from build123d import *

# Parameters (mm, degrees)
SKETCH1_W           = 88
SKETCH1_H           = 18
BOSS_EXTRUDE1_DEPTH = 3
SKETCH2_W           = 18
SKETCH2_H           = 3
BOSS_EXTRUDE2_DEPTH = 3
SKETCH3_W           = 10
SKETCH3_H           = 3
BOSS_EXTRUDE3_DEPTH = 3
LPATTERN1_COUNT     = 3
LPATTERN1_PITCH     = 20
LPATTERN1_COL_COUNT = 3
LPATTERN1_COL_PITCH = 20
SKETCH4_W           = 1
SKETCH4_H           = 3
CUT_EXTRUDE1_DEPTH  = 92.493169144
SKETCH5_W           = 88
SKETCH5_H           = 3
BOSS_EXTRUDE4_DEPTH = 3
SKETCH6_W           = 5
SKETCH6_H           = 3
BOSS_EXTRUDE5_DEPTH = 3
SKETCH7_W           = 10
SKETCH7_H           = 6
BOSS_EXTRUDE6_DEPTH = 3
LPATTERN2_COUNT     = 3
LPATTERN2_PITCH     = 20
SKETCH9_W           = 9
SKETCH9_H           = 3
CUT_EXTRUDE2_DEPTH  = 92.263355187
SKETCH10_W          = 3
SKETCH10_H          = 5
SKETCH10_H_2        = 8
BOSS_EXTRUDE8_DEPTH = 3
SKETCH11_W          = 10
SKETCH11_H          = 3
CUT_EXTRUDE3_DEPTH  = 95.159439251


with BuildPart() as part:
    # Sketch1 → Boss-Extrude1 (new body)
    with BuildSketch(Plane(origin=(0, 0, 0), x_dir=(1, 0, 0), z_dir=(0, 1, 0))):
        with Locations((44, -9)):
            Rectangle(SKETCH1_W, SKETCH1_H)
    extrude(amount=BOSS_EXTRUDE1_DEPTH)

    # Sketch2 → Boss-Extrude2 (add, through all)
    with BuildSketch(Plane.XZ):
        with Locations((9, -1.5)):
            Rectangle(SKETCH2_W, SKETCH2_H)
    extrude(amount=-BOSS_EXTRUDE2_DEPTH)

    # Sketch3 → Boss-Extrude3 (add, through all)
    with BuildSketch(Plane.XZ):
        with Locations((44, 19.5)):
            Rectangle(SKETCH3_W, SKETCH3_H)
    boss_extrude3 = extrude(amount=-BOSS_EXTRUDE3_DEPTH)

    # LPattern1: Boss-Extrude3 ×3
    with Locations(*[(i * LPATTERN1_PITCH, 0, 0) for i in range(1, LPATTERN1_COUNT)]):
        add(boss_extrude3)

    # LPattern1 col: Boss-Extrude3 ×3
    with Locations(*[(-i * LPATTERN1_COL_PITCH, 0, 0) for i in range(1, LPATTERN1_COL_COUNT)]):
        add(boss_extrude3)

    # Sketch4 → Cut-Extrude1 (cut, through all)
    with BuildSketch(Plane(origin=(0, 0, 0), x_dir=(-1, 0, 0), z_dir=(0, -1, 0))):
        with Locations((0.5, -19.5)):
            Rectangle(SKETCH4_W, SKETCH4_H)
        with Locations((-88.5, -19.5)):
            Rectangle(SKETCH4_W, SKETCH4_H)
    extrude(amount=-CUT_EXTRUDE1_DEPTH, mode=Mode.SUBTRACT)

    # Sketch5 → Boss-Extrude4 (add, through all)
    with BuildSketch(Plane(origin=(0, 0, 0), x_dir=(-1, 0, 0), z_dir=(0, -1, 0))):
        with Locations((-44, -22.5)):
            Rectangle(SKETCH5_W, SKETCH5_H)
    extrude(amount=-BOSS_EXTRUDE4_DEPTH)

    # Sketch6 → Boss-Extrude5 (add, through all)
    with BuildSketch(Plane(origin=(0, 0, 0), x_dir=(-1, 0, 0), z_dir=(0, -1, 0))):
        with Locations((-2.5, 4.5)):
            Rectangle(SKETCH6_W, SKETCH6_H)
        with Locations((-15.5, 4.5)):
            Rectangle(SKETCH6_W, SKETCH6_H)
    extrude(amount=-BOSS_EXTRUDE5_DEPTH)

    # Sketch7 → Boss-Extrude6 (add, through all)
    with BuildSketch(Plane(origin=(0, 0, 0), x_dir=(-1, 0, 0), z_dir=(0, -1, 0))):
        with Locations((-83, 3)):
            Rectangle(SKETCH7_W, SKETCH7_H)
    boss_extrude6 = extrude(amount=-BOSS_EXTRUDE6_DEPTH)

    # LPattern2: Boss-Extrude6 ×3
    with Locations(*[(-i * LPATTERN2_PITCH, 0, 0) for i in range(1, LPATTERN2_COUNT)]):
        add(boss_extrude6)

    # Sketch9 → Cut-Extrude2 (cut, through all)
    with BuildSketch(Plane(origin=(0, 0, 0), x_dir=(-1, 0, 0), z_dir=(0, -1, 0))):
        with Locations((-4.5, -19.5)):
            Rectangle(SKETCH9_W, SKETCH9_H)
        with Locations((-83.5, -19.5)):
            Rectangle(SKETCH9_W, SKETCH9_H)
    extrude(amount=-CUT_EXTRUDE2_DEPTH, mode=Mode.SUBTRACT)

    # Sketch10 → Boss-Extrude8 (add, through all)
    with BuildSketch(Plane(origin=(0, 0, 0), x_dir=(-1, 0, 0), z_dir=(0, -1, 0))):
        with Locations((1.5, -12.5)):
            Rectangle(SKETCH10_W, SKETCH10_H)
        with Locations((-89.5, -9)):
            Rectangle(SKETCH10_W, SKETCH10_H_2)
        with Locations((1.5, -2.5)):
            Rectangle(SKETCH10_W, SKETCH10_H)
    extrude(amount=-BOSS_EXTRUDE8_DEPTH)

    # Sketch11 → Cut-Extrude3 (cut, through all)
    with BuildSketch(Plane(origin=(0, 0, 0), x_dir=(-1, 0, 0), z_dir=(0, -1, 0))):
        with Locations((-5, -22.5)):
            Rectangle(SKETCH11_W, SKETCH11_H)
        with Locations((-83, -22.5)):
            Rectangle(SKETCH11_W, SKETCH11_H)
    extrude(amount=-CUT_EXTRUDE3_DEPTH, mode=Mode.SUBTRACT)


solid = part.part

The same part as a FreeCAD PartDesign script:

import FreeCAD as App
import Part
import Sketcher
from FreeCAD import Vector

doc = App.newDocument("Part")
params = doc.addObject("Spreadsheet::Sheet", "Params")
for row, (alias, value) in enumerate([
    ("sketch1_width", "88 mm"),
    ("sketch1_height", "18 mm"),
    ("pad1_length", "3 mm"),
    ("sketch2_width", "18 mm"),
    ("sketch2_height", "3 mm"),
    ("pad2_length", "3 mm"),
    ("sketch3_width", "10 mm"),
    ("sketch3_height", "3 mm"),
    ("pad3_length", "3 mm"),
    ("linearpattern_pitch", "20 mm"),
    ("linearpattern2_pitch", "20 mm"),
    ("sketch4_width", "1 mm"),
    ("sketch4_height", "3 mm"),
    ("sketch5_width", "88 mm"),
    ("sketch5_height", "3 mm"),
    ("pad4_length", "3 mm"),
    ("sketch6_width", "5 mm"),
    ("sketch6_height", "3 mm"),
    ("pad5_length", "3 mm"),
    ("sketch7_width", "10 mm"),
    ("sketch7_height", "6 mm"),
    ("pad6_length", "3 mm"),
    ("linearpattern3_pitch", "20 mm"),
    ("sketch8_width", "9 mm"),
    ("sketch8_height", "3 mm"),
    ("sketch9_width", "3 mm"),
    ("sketch9_height", "5 mm"),
    ("sketch9_height2", "8 mm"),
    ("pad7_length", "3 mm"),
    ("sketch10_width", "10 mm"),
    ("sketch10_height", "3 mm"),
], start=1):
    params.set(f"A{row}", alias)
    params.set(f"B{row}", "=" + value)
    params.setAlias(f"B{row}", alias)

body = doc.addObject("PartDesign::Body", "Body")

# Sketch on XZ plane
sketch1 = body.newObject("Sketcher::SketchObject", "Sketch")
sketch1.AttachmentSupport = (doc.getObject("XZ_Plane"), [""])
sketch1.MapMode = "FlatFace"
sketch1.addGeometry([
    Part.LineSegment(Vector(0, 0, 0), Vector(0, 18, 0)),
    Part.LineSegment(Vector(0, 18, 0), Vector(88, 18, 0)),
    Part.LineSegment(Vector(88, 18, 0), Vector(88, 0, 0)),
    Part.LineSegment(Vector(88, 0, 0), Vector(0, 0, 0)),
], False)
sketch1.addConstraint([
    Sketcher.Constraint("Coincident", 0, 2, 1, 1),
    Sketcher.Constraint("Coincident", 1, 2, 2, 1),
    Sketcher.Constraint("Coincident", 2, 2, 3, 1),
    Sketcher.Constraint("Coincident", 3, 2, 0, 1),
    Sketcher.Constraint("Vertical", 0),
    Sketcher.Constraint("Horizontal", 1),
    Sketcher.Constraint("Vertical", 2),
    Sketcher.Constraint("Horizontal", 3),
    Sketcher.Constraint("Coincident", 3, 2, -1, 1),
    Sketcher.Constraint("DistanceX", 1, 1, 1, 2, 88.0),
    Sketcher.Constraint("DistanceY", 0, 1, 0, 2, 18.0),
])
sketch1.setExpression("Constraints[9]", "Params.sketch1_width")
sketch1.setExpression("Constraints[10]", "Params.sketch1_height")
pad1 = body.newObject("PartDesign::Pad", "Pad")
pad1.Profile = sketch1
pad1.setExpression("Length", "Params.pad1_length")
pad1.Reversed = True

# Sketch on XZ plane
sketch2 = body.newObject("Sketcher::SketchObject", "Sketch001")
sketch2.AttachmentSupport = (doc.getObject("XZ_Plane"), [""])
sketch2.MapMode = "FlatFace"
sketch2.addGeometry([
    Part.LineSegment(Vector(0, 0, 0), Vector(0, -3, 0)),
    Part.LineSegment(Vector(0, -3, 0), Vector(18, -3, 0)),
    Part.LineSegment(Vector(18, -3, 0), Vector(18, 0, 0)),
    Part.LineSegment(Vector(18, 0, 0), Vector(0, 0, 0)),
], False)
sketch2.addConstraint([
    Sketcher.Constraint("Coincident", 0, 2, 1, 1),
    Sketcher.Constraint("Coincident", 1, 2, 2, 1),
    Sketcher.Constraint("Coincident", 2, 2, 3, 1),
    Sketcher.Constraint("Coincident", 3, 2, 0, 1),
    Sketcher.Constraint("Vertical", 0),
    Sketcher.Constraint("Horizontal", 1),
    Sketcher.Constraint("Vertical", 2),
    Sketcher.Constraint("Horizontal", 3),
    Sketcher.Constraint("Coincident", 3, 2, -1, 1),
    Sketcher.Constraint("DistanceX", 1, 1, 1, 2, 18.0),
    Sketcher.Constraint("DistanceY", 0, 2, 0, 1, 3.0),
])
sketch2.setExpression("Constraints[9]", "Params.sketch2_width")
sketch2.setExpression("Constraints[10]", "Params.sketch2_height")
pad2 = body.newObject("PartDesign::Pad", "Pad001")
pad2.Profile = sketch2
pad2.setExpression("Length", "Params.pad2_length")
pad2.Reversed = True

# Sketch on XZ plane
sketch3 = body.newObject("Sketcher::SketchObject", "Sketch002")
sketch3.AttachmentSupport = (doc.getObject("XZ_Plane"), [""])
sketch3.MapMode = "FlatFace"
sketch3.addGeometry([
    Part.LineSegment(Vector(39, 21, 0), Vector(39, 18, 0)),
    Part.LineSegment(Vector(39, 18, 0), Vector(49, 18, 0)),
    Part.LineSegment(Vector(49, 18, 0), Vector(49, 21, 0)),
    Part.LineSegment(Vector(49, 21, 0), Vector(39, 21, 0)),
], False)
sketch3.addConstraint([
    Sketcher.Constraint("Coincident", 0, 2, 1, 1),
    Sketcher.Constraint("Coincident", 1, 2, 2, 1),
    Sketcher.Constraint("Coincident", 2, 2, 3, 1),
    Sketcher.Constraint("Coincident", 3, 2, 0, 1),
    Sketcher.Constraint("Vertical", 0),
    Sketcher.Constraint("Horizontal", 1),
    Sketcher.Constraint("Vertical", 2),
    Sketcher.Constraint("Horizontal", 3),
    Sketcher.Constraint("DistanceX", 1, 1, 1, 2, 10.0),
    Sketcher.Constraint("DistanceY", 0, 2, 0, 1, 3.0),
    Sketcher.Constraint("DistanceX", -1, 1, 0, 2, 39.0),
    Sketcher.Constraint("DistanceY", -1, 1, 0, 2, 18.0),
])
sketch3.setExpression("Constraints[8]", "Params.sketch3_width")
sketch3.setExpression("Constraints[9]", "Params.sketch3_height")
pad3 = body.newObject("PartDesign::Pad", "Pad002")
pad3.Profile = sketch3
pad3.setExpression("Length", "Params.pad3_length")
pad3.Reversed = True
doc.recompute()

linearpattern = body.newObject("PartDesign::LinearPattern", "LinearPattern")
linearpattern.Originals = [pad3]
linearpattern.Direction = (doc.getObject("X_Axis"), [""])
linearpattern.Mode = "offset"
linearpattern.setExpression("Offset", "Params.linearpattern_pitch")
linearpattern.Occurrences = 3
body.Tip = linearpattern
doc.recompute()

linearpattern2 = body.newObject("PartDesign::LinearPattern", "LinearPattern001")
linearpattern2.Originals = [pad3]
linearpattern2.Direction = (doc.getObject("X_Axis"), [""])
linearpattern2.Mode = "offset"
linearpattern2.setExpression("Offset", "Params.linearpattern2_pitch")
linearpattern2.Occurrences = 3
linearpattern2.Reversed = True
body.Tip = linearpattern2

# Sketch on XZ plane
sketch4 = body.newObject("Sketcher::SketchObject", "Sketch003")
sketch4.AttachmentSupport = (doc.getObject("XZ_Plane"), [""])
sketch4.MapMode = "FlatFace"
sketch4.addGeometry([
    Part.LineSegment(Vector(0, 18, 0), Vector(0, 21, 0)),  # 0
    Part.LineSegment(Vector(0, 21, 0), Vector(-1, 21, 0)),  # 1
    Part.LineSegment(Vector(-1, 21, 0), Vector(-1, 18, 0)),  # 2
    Part.LineSegment(Vector(-1, 18, 0), Vector(0, 18, 0)),  # 3
    Part.LineSegment(Vector(89, 18, 0), Vector(89, 21, 0)),  # 4
    Part.LineSegment(Vector(89, 21, 0), Vector(88, 21, 0)),  # 5
    Part.LineSegment(Vector(88, 21, 0), Vector(88, 18, 0)),  # 6
    Part.LineSegment(Vector(88, 18, 0), Vector(89, 18, 0)),  # 7
], False)
sketch4.addConstraint([
    Sketcher.Constraint("Coincident", 0, 2, 1, 1),
    Sketcher.Constraint("Coincident", 1, 2, 2, 1),
    Sketcher.Constraint("Coincident", 2, 2, 3, 1),
    Sketcher.Constraint("Coincident", 3, 2, 0, 1),
    Sketcher.Constraint("Coincident", 4, 2, 5, 1),
    Sketcher.Constraint("Coincident", 5, 2, 6, 1),
    Sketcher.Constraint("Coincident", 6, 2, 7, 1),
    Sketcher.Constraint("Coincident", 7, 2, 4, 1),
    Sketcher.Constraint("Vertical", 0),
    Sketcher.Constraint("Horizontal", 1),
    Sketcher.Constraint("Vertical", 2),
    Sketcher.Constraint("Horizontal", 3),
    Sketcher.Constraint("Vertical", 4),
    Sketcher.Constraint("Horizontal", 5),
    Sketcher.Constraint("Vertical", 6),
    Sketcher.Constraint("Horizontal", 7),
    Sketcher.Constraint("PointOnObject", 0, 2, -2),
    Sketcher.Constraint("Horizontal", 1, 2, 4, 2),
    Sketcher.Constraint("Horizontal", 3, 2, 6, 2),
    Sketcher.Constraint("Equal", 3, 5),
    Sketcher.Constraint("DistanceX", 1, 2, 1, 1, 1.0),
    Sketcher.Constraint("DistanceY", 0, 1, 0, 2, 3.0),
    Sketcher.Constraint("DistanceY", -1, 1, 0, 2, 21.0),
    Sketcher.Constraint("DistanceX", -1, 1, 4, 2, 89.0),
])
sketch4.setExpression("Constraints[20]", "Params.sketch4_width")
sketch4.setExpression("Constraints[21]", "Params.sketch4_height")
pocket1 = body.newObject("PartDesign::Pocket", "Pocket")
pocket1.Profile = sketch4
pocket1.Type = "ThroughAll"

# Sketch on XZ plane
sketch5 = body.newObject("Sketcher::SketchObject", "Sketch004")
sketch5.AttachmentSupport = (doc.getObject("XZ_Plane"), [""])
sketch5.MapMode = "FlatFace"
sketch5.addGeometry([
    Part.LineSegment(Vector(88, 21, 0), Vector(88, 24, 0)),
    Part.LineSegment(Vector(88, 24, 0), Vector(0, 24, 0)),
    Part.LineSegment(Vector(0, 24, 0), Vector(0, 21, 0)),
    Part.LineSegment(Vector(0, 21, 0), Vector(88, 21, 0)),
], False)
sketch5.addConstraint([
    Sketcher.Constraint("Coincident", 0, 2, 1, 1),
    Sketcher.Constraint("Coincident", 1, 2, 2, 1),
    Sketcher.Constraint("Coincident", 2, 2, 3, 1),
    Sketcher.Constraint("Coincident", 3, 2, 0, 1),
    Sketcher.Constraint("Vertical", 0),
    Sketcher.Constraint("Horizontal", 1),
    Sketcher.Constraint("Vertical", 2),
    Sketcher.Constraint("Horizontal", 3),
    Sketcher.Constraint("PointOnObject", 1, 2, -2),
    Sketcher.Constraint("DistanceX", 1, 2, 1, 1, 88.0),
    Sketcher.Constraint("DistanceY", 0, 1, 0, 2, 3.0),
    Sketcher.Constraint("DistanceY", -1, 1, 0, 2, 24.0),
])
sketch5.setExpression("Constraints[9]", "Params.sketch5_width")
sketch5.setExpression("Constraints[10]", "Params.sketch5_height")
pad4 = body.newObject("PartDesign::Pad", "Pad003")
pad4.Profile = sketch5
pad4.setExpression("Length", "Params.pad4_length")
pad4.Reversed = True

# Sketch on XZ plane
sketch6 = body.newObject("Sketcher::SketchObject", "Sketch005")
sketch6.AttachmentSupport = (doc.getObject("XZ_Plane"), [""])
sketch6.MapMode = "FlatFace"
sketch6.addGeometry([
    Part.LineSegment(Vector(5, -6, 0), Vector(5, -3, 0)),  # 0
    Part.LineSegment(Vector(5, -3, 0), Vector(0, -3, 0)),  # 1
    Part.LineSegment(Vector(0, -3, 0), Vector(0, -6, 0)),  # 2
    Part.LineSegment(Vector(0, -6, 0), Vector(5, -6, 0)),  # 3
    Part.LineSegment(Vector(18, -6, 0), Vector(18, -3, 0)),  # 4
    Part.LineSegment(Vector(18, -3, 0), Vector(13, -3, 0)),  # 5
    Part.LineSegment(Vector(13, -3, 0), Vector(13, -6, 0)),  # 6
    Part.LineSegment(Vector(13, -6, 0), Vector(18, -6, 0)),  # 7
], False)
sketch6.addConstraint([
    Sketcher.Constraint("Coincident", 0, 2, 1, 1),
    Sketcher.Constraint("Coincident", 1, 2, 2, 1),
    Sketcher.Constraint("Coincident", 2, 2, 3, 1),
    Sketcher.Constraint("Coincident", 3, 2, 0, 1),
    Sketcher.Constraint("Coincident", 4, 2, 5, 1),
    Sketcher.Constraint("Coincident", 5, 2, 6, 1),
    Sketcher.Constraint("Coincident", 6, 2, 7, 1),
    Sketcher.Constraint("Coincident", 7, 2, 4, 1),
    Sketcher.Constraint("Vertical", 0),
    Sketcher.Constraint("Horizontal", 1),
    Sketcher.Constraint("Vertical", 2),
    Sketcher.Constraint("Horizontal", 3),
    Sketcher.Constraint("Vertical", 4),
    Sketcher.Constraint("Horizontal", 5),
    Sketcher.Constraint("Vertical", 6),
    Sketcher.Constraint("Horizontal", 7),
    Sketcher.Constraint("PointOnObject", 1, 2, -2),
    Sketcher.Constraint("Horizontal", 1, 2, 4, 2),
    Sketcher.Constraint("Horizontal", 3, 2, 6, 2),
    Sketcher.Constraint("Equal", 3, 5),
    Sketcher.Constraint("DistanceX", 1, 2, 1, 1, 5.0),
    Sketcher.Constraint("DistanceY", 0, 1, 0, 2, 3.0),
    Sketcher.Constraint("DistanceY", 0, 2, -1, 1, 3.0),
    Sketcher.Constraint("DistanceX", -1, 1, 4, 2, 18.0),
])
sketch6.setExpression("Constraints[20]", "Params.sketch6_width")
sketch6.setExpression("Constraints[21]", "Params.sketch6_height")
pad5 = body.newObject("PartDesign::Pad", "Pad004")
pad5.Profile = sketch6
pad5.setExpression("Length", "Params.pad5_length")
pad5.Reversed = True

# Sketch on XZ plane
sketch7 = body.newObject("Sketcher::SketchObject", "Sketch006")
sketch7.AttachmentSupport = (doc.getObject("XZ_Plane"), [""])
sketch7.MapMode = "FlatFace"
sketch7.addGeometry([
    Part.LineSegment(Vector(88, -6, 0), Vector(88, 0, 0)),
    Part.LineSegment(Vector(88, 0, 0), Vector(78, 0, 0)),
    Part.LineSegment(Vector(78, 0, 0), Vector(78, -6, 0)),
    Part.LineSegment(Vector(78, -6, 0), Vector(88, -6, 0)),
], False)
sketch7.addConstraint([
    Sketcher.Constraint("Coincident", 0, 2, 1, 1),
    Sketcher.Constraint("Coincident", 1, 2, 2, 1),
    Sketcher.Constraint("Coincident", 2, 2, 3, 1),
    Sketcher.Constraint("Coincident", 3, 2, 0, 1),
    Sketcher.Constraint("Vertical", 0),
    Sketcher.Constraint("Horizontal", 1),
    Sketcher.Constraint("Vertical", 2),
    Sketcher.Constraint("Horizontal", 3),
    Sketcher.Constraint("PointOnObject", 0, 2, -1),
    Sketcher.Constraint("DistanceX", 1, 2, 1, 1, 10.0),
    Sketcher.Constraint("DistanceY", 0, 1, 0, 2, 6.0),
    Sketcher.Constraint("DistanceX", -1, 1, 0, 2, 88.0),
])
sketch7.setExpression("Constraints[9]", "Params.sketch7_width")
sketch7.setExpression("Constraints[10]", "Params.sketch7_height")
pad6 = body.newObject("PartDesign::Pad", "Pad005")
pad6.Profile = sketch7
pad6.setExpression("Length", "Params.pad6_length")
pad6.Reversed = True
doc.recompute()

linearpattern3 = body.newObject("PartDesign::LinearPattern", "LinearPattern002")
linearpattern3.Originals = [pad6]
linearpattern3.Direction = (doc.getObject("X_Axis"), [""])
linearpattern3.Mode = "offset"
linearpattern3.setExpression("Offset", "Params.linearpattern3_pitch")
linearpattern3.Occurrences = 3
linearpattern3.Reversed = True
body.Tip = linearpattern3

# Sketch on XZ plane
sketch8 = body.newObject("Sketcher::SketchObject", "Sketch007")
sketch8.AttachmentSupport = (doc.getObject("XZ_Plane"), [""])
sketch8.MapMode = "FlatFace"
sketch8.addGeometry([
    Part.LineSegment(Vector(9, 18, 0), Vector(9, 21, 0)),  # 0
    Part.LineSegment(Vector(9, 21, 0), Vector(0, 21, 0)),  # 1
    Part.LineSegment(Vector(0, 21, 0), Vector(0, 18, 0)),  # 2
    Part.LineSegment(Vector(0, 18, 0), Vector(9, 18, 0)),  # 3
    Part.LineSegment(Vector(88, 18, 0), Vector(88, 21, 0)),  # 4
    Part.LineSegment(Vector(88, 21, 0), Vector(79, 21, 0)),  # 5
    Part.LineSegment(Vector(79, 21, 0), Vector(79, 18, 0)),  # 6
    Part.LineSegment(Vector(79, 18, 0), Vector(88, 18, 0)),  # 7
], False)
sketch8.addConstraint([
    Sketcher.Constraint("Coincident", 0, 2, 1, 1),
    Sketcher.Constraint("Coincident", 1, 2, 2, 1),
    Sketcher.Constraint("Coincident", 2, 2, 3, 1),
    Sketcher.Constraint("Coincident", 3, 2, 0, 1),
    Sketcher.Constraint("Coincident", 4, 2, 5, 1),
    Sketcher.Constraint("Coincident", 5, 2, 6, 1),
    Sketcher.Constraint("Coincident", 6, 2, 7, 1),
    Sketcher.Constraint("Coincident", 7, 2, 4, 1),
    Sketcher.Constraint("Vertical", 0),
    Sketcher.Constraint("Horizontal", 1),
    Sketcher.Constraint("Vertical", 2),
    Sketcher.Constraint("Horizontal", 3),
    Sketcher.Constraint("Vertical", 4),
    Sketcher.Constraint("Horizontal", 5),
    Sketcher.Constraint("Vertical", 6),
    Sketcher.Constraint("Horizontal", 7),
    Sketcher.Constraint("PointOnObject", 1, 2, -2),
    Sketcher.Constraint("Horizontal", 1, 2, 4, 2),
    Sketcher.Constraint("Horizontal", 3, 2, 6, 2),
    Sketcher.Constraint("Equal", 3, 5),
    Sketcher.Constraint("DistanceX", 1, 2, 1, 1, 9.0),
    Sketcher.Constraint("DistanceY", 0, 1, 0, 2, 3.0),
    Sketcher.Constraint("DistanceY", -1, 1, 0, 2, 21.0),
    Sketcher.Constraint("DistanceX", -1, 1, 4, 2, 88.0),
])
sketch8.setExpression("Constraints[20]", "Params.sketch8_width")
sketch8.setExpression("Constraints[21]", "Params.sketch8_height")
pocket2 = body.newObject("PartDesign::Pocket", "Pocket001")
pocket2.Profile = sketch8
pocket2.Type = "ThroughAll"

# Sketch on XZ plane
sketch9 = body.newObject("Sketcher::SketchObject", "Sketch008")
sketch9.AttachmentSupport = (doc.getObject("XZ_Plane"), [""])
sketch9.MapMode = "FlatFace"
sketch9.addGeometry([
    Part.LineSegment(Vector(0, 10, 0), Vector(0, 15, 0)),  # 0
    Part.LineSegment(Vector(0, 15, 0), Vector(-3, 15, 0)),  # 1
    Part.LineSegment(Vector(-3, 15, 0), Vector(-3, 10, 0)),  # 2
    Part.LineSegment(Vector(-3, 10, 0), Vector(0, 10, 0)),  # 3
    Part.LineSegment(Vector(91, 5, 0), Vector(91, 13, 0)),  # 4
    Part.LineSegment(Vector(91, 13, 0), Vector(88, 13, 0)),  # 5
    Part.LineSegment(Vector(88, 13, 0), Vector(88, 5, 0)),  # 6
    Part.LineSegment(Vector(88, 5, 0), Vector(91, 5, 0)),  # 7
    Part.LineSegment(Vector(0, 0, 0), Vector(0, 5, 0)),  # 8
    Part.LineSegment(Vector(0, 5, 0), Vector(-3, 5, 0)),  # 9
    Part.LineSegment(Vector(-3, 5, 0), Vector(-3, 0, 0)),  # 10
    Part.LineSegment(Vector(-3, 0, 0), Vector(0, 0, 0)),  # 11
], False)
sketch9.addConstraint([
    Sketcher.Constraint("Coincident", 0, 2, 1, 1),
    Sketcher.Constraint("Coincident", 1, 2, 2, 1),
    Sketcher.Constraint("Coincident", 2, 2, 3, 1),
    Sketcher.Constraint("Coincident", 3, 2, 0, 1),
    Sketcher.Constraint("Coincident", 4, 2, 5, 1),
    Sketcher.Constraint("Coincident", 5, 2, 6, 1),
    Sketcher.Constraint("Coincident", 6, 2, 7, 1),
    Sketcher.Constraint("Coincident", 7, 2, 4, 1),
    Sketcher.Constraint("Coincident", 8, 2, 9, 1),
    Sketcher.Constraint("Coincident", 9, 2, 10, 1),
    Sketcher.Constraint("Coincident", 10, 2, 11, 1),
    Sketcher.Constraint("Coincident", 11, 2, 8, 1),
    Sketcher.Constraint("Vertical", 0),
    Sketcher.Constraint("Horizontal", 1),
    Sketcher.Constraint("Vertical", 2),
    Sketcher.Constraint("Horizontal", 3),
    Sketcher.Constraint("Vertical", 4),
    Sketcher.Constraint("Horizontal", 5),
    Sketcher.Constraint("Vertical", 6),
    Sketcher.Constraint("Horizontal", 7),
    Sketcher.Constraint("Vertical", 8),
    Sketcher.Constraint("Horizontal", 9),
    Sketcher.Constraint("Vertical", 10),
    Sketcher.Constraint("Horizontal", 11),
    Sketcher.Constraint("Coincident", 11, 2, -1, 1),
    Sketcher.Constraint("PointOnObject", 0, 2, -2),
    Sketcher.Constraint("Horizontal", 7, 2, 8, 2),
    Sketcher.Constraint("Vertical", 2, 2, 9, 2),
    Sketcher.Constraint("Equal", 3, 5),
    Sketcher.Constraint("Equal", 2, 8),
    Sketcher.Constraint("DistanceX", 1, 2, 1, 1, 3.0),
    Sketcher.Constraint("DistanceY", 0, 1, 0, 2, 5.0),
    Sketcher.Constraint("DistanceY", 4, 1, 4, 2, 8.0),
    Sketcher.Constraint("DistanceY", -1, 1, 0, 2, 15.0),
    Sketcher.Constraint("DistanceX", -1, 1, 4, 2, 91.0),
])
sketch9.setExpression("Constraints[30]", "Params.sketch9_width")
sketch9.setExpression("Constraints[31]", "Params.sketch9_height")
sketch9.setExpression("Constraints[32]", "Params.sketch9_height2")
pad7 = body.newObject("PartDesign::Pad", "Pad006")
pad7.Profile = sketch9
pad7.setExpression("Length", "Params.pad7_length")
pad7.Reversed = True

# Sketch on XZ plane
sketch10 = body.newObject("Sketcher::SketchObject", "Sketch009")
sketch10.AttachmentSupport = (doc.getObject("XZ_Plane"), [""])
sketch10.MapMode = "FlatFace"
sketch10.addGeometry([
    Part.LineSegment(Vector(10, 21, 0), Vector(10, 24, 0)),  # 0
    Part.LineSegment(Vector(10, 24, 0), Vector(0, 24, 0)),  # 1
    Part.LineSegment(Vector(0, 24, 0), Vector(0, 21, 0)),  # 2
    Part.LineSegment(Vector(0, 21, 0), Vector(10, 21, 0)),  # 3
    Part.LineSegment(Vector(88, 21, 0), Vector(88, 24, 0)),  # 4
    Part.LineSegment(Vector(88, 24, 0), Vector(78, 24, 0)),  # 5
    Part.LineSegment(Vector(78, 24, 0), Vector(78, 21, 0)),  # 6
    Part.LineSegment(Vector(78, 21, 0), Vector(88, 21, 0)),  # 7
], False)
sketch10.addConstraint([
    Sketcher.Constraint("Coincident", 0, 2, 1, 1),
    Sketcher.Constraint("Coincident", 1, 2, 2, 1),
    Sketcher.Constraint("Coincident", 2, 2, 3, 1),
    Sketcher.Constraint("Coincident", 3, 2, 0, 1),
    Sketcher.Constraint("Coincident", 4, 2, 5, 1),
    Sketcher.Constraint("Coincident", 5, 2, 6, 1),
    Sketcher.Constraint("Coincident", 6, 2, 7, 1),
    Sketcher.Constraint("Coincident", 7, 2, 4, 1),
    Sketcher.Constraint("Vertical", 0),
    Sketcher.Constraint("Horizontal", 1),
    Sketcher.Constraint("Vertical", 2),
    Sketcher.Constraint("Horizontal", 3),
    Sketcher.Constraint("Vertical", 4),
    Sketcher.Constraint("Horizontal", 5),
    Sketcher.Constraint("Vertical", 6),
    Sketcher.Constraint("Horizontal", 7),
    Sketcher.Constraint("PointOnObject", 1, 2, -2),
    Sketcher.Constraint("Horizontal", 1, 2, 4, 2),
    Sketcher.Constraint("Horizontal", 3, 2, 6, 2),
    Sketcher.Constraint("Equal", 3, 5),
    Sketcher.Constraint("DistanceX", 1, 2, 1, 1, 10.0),
    Sketcher.Constraint("DistanceY", 0, 1, 0, 2, 3.0),
    Sketcher.Constraint("DistanceY", -1, 1, 0, 2, 24.0),
    Sketcher.Constraint("DistanceX", -1, 1, 4, 2, 88.0),
])
sketch10.setExpression("Constraints[20]", "Params.sketch10_width")
sketch10.setExpression("Constraints[21]", "Params.sketch10_height")
pocket3 = body.newObject("PartDesign::Pocket", "Pocket002")
pocket3.Profile = sketch10
pocket3.Type = "ThroughAll"

doc.recompute()
